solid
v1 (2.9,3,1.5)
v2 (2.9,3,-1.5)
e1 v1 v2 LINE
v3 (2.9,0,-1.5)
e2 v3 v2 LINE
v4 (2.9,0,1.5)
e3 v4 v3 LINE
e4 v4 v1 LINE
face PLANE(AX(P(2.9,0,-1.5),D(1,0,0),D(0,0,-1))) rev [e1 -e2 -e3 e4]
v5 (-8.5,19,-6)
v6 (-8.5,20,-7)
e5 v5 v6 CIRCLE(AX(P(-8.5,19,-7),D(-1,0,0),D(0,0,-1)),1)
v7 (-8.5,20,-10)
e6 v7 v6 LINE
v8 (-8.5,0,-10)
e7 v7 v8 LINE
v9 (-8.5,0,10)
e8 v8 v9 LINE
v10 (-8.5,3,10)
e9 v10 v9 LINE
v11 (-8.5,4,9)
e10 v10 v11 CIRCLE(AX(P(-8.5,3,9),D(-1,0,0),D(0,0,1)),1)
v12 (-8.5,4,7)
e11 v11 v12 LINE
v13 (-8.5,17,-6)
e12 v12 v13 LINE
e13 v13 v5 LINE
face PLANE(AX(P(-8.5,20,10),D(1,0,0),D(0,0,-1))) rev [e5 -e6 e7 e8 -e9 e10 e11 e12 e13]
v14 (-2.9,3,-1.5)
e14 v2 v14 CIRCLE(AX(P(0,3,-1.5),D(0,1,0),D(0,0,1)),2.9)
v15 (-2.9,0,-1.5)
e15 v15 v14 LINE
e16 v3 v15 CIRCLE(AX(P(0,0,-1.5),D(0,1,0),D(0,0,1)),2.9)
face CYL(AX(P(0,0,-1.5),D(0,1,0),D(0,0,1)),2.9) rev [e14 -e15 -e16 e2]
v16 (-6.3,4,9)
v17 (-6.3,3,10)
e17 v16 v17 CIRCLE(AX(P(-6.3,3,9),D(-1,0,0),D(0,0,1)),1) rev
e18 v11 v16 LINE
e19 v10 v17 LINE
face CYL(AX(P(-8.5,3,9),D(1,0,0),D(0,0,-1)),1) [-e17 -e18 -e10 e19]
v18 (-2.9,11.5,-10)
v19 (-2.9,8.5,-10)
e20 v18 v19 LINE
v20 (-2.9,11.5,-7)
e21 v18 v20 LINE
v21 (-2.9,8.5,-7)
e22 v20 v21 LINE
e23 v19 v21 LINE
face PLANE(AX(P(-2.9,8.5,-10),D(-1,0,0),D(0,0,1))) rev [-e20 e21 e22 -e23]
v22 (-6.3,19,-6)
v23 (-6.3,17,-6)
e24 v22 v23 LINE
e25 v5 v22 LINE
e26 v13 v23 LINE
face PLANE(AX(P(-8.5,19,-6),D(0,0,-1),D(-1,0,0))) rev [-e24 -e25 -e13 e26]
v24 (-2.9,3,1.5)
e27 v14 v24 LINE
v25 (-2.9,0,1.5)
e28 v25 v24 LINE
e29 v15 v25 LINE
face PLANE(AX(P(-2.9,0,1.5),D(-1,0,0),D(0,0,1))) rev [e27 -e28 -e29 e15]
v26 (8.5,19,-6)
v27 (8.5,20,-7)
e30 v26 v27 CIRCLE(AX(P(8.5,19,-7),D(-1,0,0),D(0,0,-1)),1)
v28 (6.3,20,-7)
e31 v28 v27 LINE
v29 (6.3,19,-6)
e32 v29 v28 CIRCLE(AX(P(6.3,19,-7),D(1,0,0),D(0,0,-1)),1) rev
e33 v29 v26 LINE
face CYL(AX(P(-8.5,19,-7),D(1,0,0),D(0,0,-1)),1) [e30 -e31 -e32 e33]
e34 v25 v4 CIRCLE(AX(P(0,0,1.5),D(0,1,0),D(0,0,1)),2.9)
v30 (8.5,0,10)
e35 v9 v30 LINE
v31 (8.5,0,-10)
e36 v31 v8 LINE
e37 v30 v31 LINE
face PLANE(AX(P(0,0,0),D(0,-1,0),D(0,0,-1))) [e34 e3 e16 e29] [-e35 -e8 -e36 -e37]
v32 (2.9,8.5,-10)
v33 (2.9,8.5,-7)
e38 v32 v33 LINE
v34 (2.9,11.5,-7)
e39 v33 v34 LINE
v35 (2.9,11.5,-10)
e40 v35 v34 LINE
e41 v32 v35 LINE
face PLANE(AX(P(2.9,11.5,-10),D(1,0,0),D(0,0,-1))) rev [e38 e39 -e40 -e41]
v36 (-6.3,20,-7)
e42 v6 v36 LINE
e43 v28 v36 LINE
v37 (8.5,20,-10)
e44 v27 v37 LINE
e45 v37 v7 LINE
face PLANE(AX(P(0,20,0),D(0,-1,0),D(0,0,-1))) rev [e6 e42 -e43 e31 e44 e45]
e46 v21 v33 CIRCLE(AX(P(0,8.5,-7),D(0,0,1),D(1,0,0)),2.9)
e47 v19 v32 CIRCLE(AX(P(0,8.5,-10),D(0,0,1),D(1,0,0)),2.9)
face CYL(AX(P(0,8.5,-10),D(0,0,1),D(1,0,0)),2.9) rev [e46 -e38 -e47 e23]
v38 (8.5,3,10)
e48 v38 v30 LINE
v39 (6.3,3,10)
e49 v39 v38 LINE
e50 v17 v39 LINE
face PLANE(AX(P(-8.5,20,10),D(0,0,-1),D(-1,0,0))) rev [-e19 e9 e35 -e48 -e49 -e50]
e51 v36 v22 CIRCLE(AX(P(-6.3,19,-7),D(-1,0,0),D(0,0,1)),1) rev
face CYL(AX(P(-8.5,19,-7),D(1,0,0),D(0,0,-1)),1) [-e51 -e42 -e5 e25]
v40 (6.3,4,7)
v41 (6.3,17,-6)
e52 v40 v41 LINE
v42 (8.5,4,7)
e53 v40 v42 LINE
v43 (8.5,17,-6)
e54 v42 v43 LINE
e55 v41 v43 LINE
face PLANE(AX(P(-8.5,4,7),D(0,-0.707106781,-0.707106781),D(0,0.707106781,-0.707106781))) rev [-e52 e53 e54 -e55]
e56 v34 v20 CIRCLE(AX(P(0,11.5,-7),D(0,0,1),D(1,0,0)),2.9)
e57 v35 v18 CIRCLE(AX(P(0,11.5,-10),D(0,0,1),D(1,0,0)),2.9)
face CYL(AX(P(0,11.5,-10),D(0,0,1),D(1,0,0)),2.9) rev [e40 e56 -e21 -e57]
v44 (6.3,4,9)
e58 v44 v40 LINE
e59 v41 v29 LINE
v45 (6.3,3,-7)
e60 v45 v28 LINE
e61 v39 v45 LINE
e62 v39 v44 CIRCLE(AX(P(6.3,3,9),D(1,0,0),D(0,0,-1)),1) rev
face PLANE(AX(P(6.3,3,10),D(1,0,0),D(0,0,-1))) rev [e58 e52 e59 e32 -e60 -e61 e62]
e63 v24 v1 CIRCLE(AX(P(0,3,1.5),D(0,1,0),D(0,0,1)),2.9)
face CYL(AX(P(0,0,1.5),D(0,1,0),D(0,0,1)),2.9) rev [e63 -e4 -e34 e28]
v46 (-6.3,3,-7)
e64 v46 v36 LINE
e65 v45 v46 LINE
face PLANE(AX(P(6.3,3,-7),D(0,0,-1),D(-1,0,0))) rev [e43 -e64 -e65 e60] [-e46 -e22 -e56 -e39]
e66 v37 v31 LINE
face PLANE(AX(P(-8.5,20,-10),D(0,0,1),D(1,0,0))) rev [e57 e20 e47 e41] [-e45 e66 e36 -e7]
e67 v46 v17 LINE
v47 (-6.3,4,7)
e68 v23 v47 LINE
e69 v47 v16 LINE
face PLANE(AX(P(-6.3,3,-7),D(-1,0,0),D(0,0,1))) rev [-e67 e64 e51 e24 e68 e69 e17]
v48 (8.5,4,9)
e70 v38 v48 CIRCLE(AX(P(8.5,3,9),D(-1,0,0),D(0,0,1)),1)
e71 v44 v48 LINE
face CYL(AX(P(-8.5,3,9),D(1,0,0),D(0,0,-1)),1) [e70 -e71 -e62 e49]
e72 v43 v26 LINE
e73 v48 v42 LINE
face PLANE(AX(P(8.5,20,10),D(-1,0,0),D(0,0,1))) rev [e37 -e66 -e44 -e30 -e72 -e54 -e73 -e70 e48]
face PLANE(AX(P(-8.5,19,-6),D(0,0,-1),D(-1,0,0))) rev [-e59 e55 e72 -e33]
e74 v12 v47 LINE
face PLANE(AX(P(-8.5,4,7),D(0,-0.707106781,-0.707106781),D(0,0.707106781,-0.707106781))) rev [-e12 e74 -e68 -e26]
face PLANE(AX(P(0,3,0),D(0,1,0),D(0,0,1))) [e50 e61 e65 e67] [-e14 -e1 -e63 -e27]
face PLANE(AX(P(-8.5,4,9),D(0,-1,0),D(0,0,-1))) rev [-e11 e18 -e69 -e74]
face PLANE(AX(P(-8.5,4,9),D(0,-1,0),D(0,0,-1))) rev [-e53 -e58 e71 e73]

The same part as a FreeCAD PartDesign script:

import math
import FreeCAD as App
import Part
import Sketcher

V = App.Vector
Q = App.Units.Quantity


def add_polygon(sketch, points):
    """Adds a closed chain of lines whose ends are joined by coincident constraints."""
    first, n = sketch.GeometryCount, len(points)
    for a, b in zip(points, points[1:] + points[:1]):
        sketch.addGeometry(Part.LineSegment(App.Vector(*a, 0), App.Vector(*b, 0)), False)
    for i in range(n):
        sketch.addConstraint(Sketcher.Constraint("Coincident", first + i, 2, first + (i + 1) % n, 1))

doc = App.newDocument("Part")
body = doc.addObject("PartDesign::Body", "Body")

# Sketch on XZ plane
sketch1 = body.newObject("Sketcher::SketchObject", "Sketch")
sketch1.AttachmentSupport = (doc.getObject("XZ_Plane"), [""])
sketch1.MapMode = "FlatFace"
add_polygon(sketch1, [(-8, -10), (-8, 10), (8, 10), (8, -10)])  # lines 0-3
sketch1.addConstraint([
    Sketcher.Constraint("Vertical", 0),
    Sketcher.Constraint("Horizontal", 1),
    Sketcher.Constraint("Vertical", 2),
    Sketcher.Constraint("Horizontal", 3),
    Sketcher.Constraint("Symmetric", 0, 2, 2, 2, -1, 1),
    Sketcher.Constraint("DistanceX", 1, 1, 1, 2, Q("17 mm")),
    Sketcher.Constraint("DistanceY", 0, 1, 0, 2, Q("20 mm")),
])
pad1 = body.newObject("PartDesign::Pad", "Pad")
pad1.Profile = sketch1
pad1.Length = 20
pad1.Reversed = True

# Sketch on XZ plane
sketch2 = body.newObject("Sketcher::SketchObject", "Sketch001")
sketch2.AttachmentSupport = (doc.getObject("XZ_Plane"), [""])
sketch2.MapMode = "FlatFace"
sketch2.AttachmentOffset = App.Placement(V(0, 0, -20), App.Rotation())
add_polygon(sketch2, [(-6, -7), (-6, 10), (6, 10), (6, -7)])  # lines 0-3
sketch2.addConstraint([
    Sketcher.Constraint("Vertical", 0),
    Sketcher.Constraint("Horizontal", 1),
    Sketcher.Constraint("Vertical", 2),
    Sketcher.Constraint("Horizontal", 3),
    Sketcher.Constraint("DistanceY", 0, 1, 0, 2, Q("17 mm")),
    Sketcher.Constraint("DistanceX", 1, 1, 1, 2, Q("12.6 mm")),
    Sketcher.Constraint("DistanceY", -1, 1, 0, 2, Q("10 mm")),
    Sketcher.Constraint("DistanceX", 0, 2, -1, 1, Q("6.3 mm")),
])
pocket1 = body.newObject("PartDesign::Pocket", "Pocket")
pocket1.Profile = sketch2
pocket1.Length = 17
pocket1.Reversed = True

# Sketch on YZ plane
sketch3 = body.newObject("Sketcher::SketchObject", "Sketch002")
sketch3.AttachmentSupport = (doc.getObject("YZ_Plane"), [""])
sketch3.MapMode = "FlatFace"
sketch3.AttachmentOffset = App.Placement(V(0, 0, 8.5), App.Rotation())
sketch3.addGeometry([
    Part.LineSegment(V(17, -6, 0), V(19, -6, 0)),  # 0
    Part.ArcOfCircle(Part.Circle(V(19, -7, 0), V(0, 0, 1), 1), math.radians(0), math.radians(90)),  # 1
    Part.LineSegment(V(20, -7, 0), V(20, 10, 0)),  # 2
    Part.LineSegment(V(20, 10, 0), V(3, 10, 0)),  # 3
    Part.ArcOfCircle(Part.Circle(V(3, 9, 0), V(0, 0, 1), 1), math.radians(0), math.radians(90)),  # 4
    Part.LineSegment(V(4, 9, 0), V(4, 7, 0)),  # 5
    Part.LineSegment(V(4, 7, 0), V(17, -6, 0)),  # 6
], False)
sketch3.addConstraint([
    Sketcher.Constraint("Tangent", 0, 2, 1, 2),
    Sketcher.Constraint("Tangent", 1, 1, 2, 1),
    Sketcher.Constraint("Coincident", 2, 2, 3, 1),
    Sketcher.Constraint("Tangent", 3, 2, 4, 2),
    Sketcher.Constraint("Tangent", 4, 1, 5, 1),
    Sketcher.Constraint("Coincident", 5, 2, 6, 1),
    Sketcher.Constraint("Coincident", 6, 2, 0, 1),
    Sketcher.Constraint("Horizontal", 0),
    Sketcher.Constraint("Vertical", 2),
    Sketcher.Constraint("Horizontal", 3),
    Sketcher.Constraint("Vertical", 5),
    Sketcher.Constraint("Equal", 1, 4),
    Sketcher.Constraint("Equal", 3, 2),
    Sketcher.Constraint("Equal", 0, 5),
    Sketcher.Constraint("Radius", 1, Q("1 mm")),
    Sketcher.Constraint("DistanceX", 0, 1, 0, 2, Q("2 mm")),
    Sketcher.Constraint("DistanceX", 3, 2, 3, 1, Q("17 mm")),
    Sketcher.Constraint("DistanceX", -1, 1, 1, 3, Q("19 mm")),
    Sketcher.Constraint("DistanceY", 1, 3, -1, 1, Q("7 mm")),
])
pocket2 = body.newObject("PartDesign::Pocket", "Pocket001")
pocket2.Profile = sketch3
pocket2.Length = 17

# Sketch on XY plane
sketch4 = body.newObject("Sketcher::SketchObject", "Sketch003")
sketch4.AttachmentSupport = (doc.getObject("XY_Plane"), [""])
sketch4.MapMode = "FlatFace"
sketch4.AttachmentOffset = App.Placement(V(0, 0, -7), App.Rotation())
sketch4.addGeometry([
    Part.LineSegment(V(2.9, 8.5, 0), V(2.9, 11.5, 0)),
    Part.ArcOfCircle(Part.Circle(V(0, 11.5, 0), V(0, 0, 1), 2.9), math.radians(0), math.radians(180)),
    Part.LineSegment(V(-2.9, 11.5, 0), V(-2.9, 8.5, 0)),
    Part.ArcOfCircle(Part.Circle(V(0, 8.5, 0), V(0, 0, 1), 2.9), math.radians(180), math.radians(360)),
], False)
sketch4.addConstraint([
    Sketcher.Constraint("Tangent", 0, 2, 1, 1),
    Sketcher.Constraint("Tangent", 1, 2, 2, 1),
    Sketcher.Constraint("Tangent", 2, 2, 3, 1),
    Sketcher.Constraint("Tangent", 3, 2, 0, 1),
    Sketcher.Constraint("Vertical", 0),
    Sketcher.Constraint("Vertical", 2),
    Sketcher.Constraint("PointOnObject", 1, 3, -2),
    Sketcher.Constraint("Radius", 1, Q("2.9 mm")),
    Sketcher.Constraint("DistanceY", 0, 1, 0, 2, Q("3 mm")),
    Sketcher.Constraint("DistanceY", -1, 1, 1, 3, Q("11.5 mm")),
])
pocket3 = body.newObject("PartDesign::Pocket", "Pocket002")
pocket3.Profile = sketch4
pocket3.Length = 3

# Sketch on XZ plane
sketch5 = body.newObject("Sketcher::SketchObject", "Sketch004")
sketch5.AttachmentSupport = (doc.getObject("XZ_Plane"), [""])
sketch5.MapMode = "FlatFace"
sketch5.AttachmentOffset = App.Placement(V(0, 0, -3), App.Rotation())
sketch5.addGeometry([
    Part.LineSegment(V(2.9, 1.5, 0), V(2.9, -1.5, 0)),
    Part.ArcOfCircle(Part.Circle(V(0, -1.5, 0), V(0, 0, 1), 2.9), math.radians(180), math.radians(360)),
    Part.LineSegment(V(-2.9, -1.5, 0), V(-2.9, 1.5, 0)),
    Part.ArcOfCircle(Part.Circle(V(0, 1.5, 0), V(0, 0, 1), 2.9), math.radians(0), math.radians(180)),
], False)
sketch5.addConstraint([
    Sketcher.Constraint("Tangent", 0, 2, 1, 2),
    Sketcher.Constraint("Tangent", 1, 1, 2, 1),
    Sketcher.Constraint("Tangent", 2, 2, 3, 2),
    Sketcher.Constraint("Tangent", 3, 1, 0, 1),
    Sketcher.Constraint("Vertical", 0),
    Sketcher.Constraint("Vertical", 2),
    Sketcher.Constraint("Symmetric", 1, 3, 3, 3, -1, 1),
    Sketcher.Constraint("Radius", 1, Q("2.9 mm")),
    Sketcher.Constraint("DistanceY", 0, 2, 0, 1, Q("3 mm")),
])
pocket4 = body.newObject("PartDesign::Pocket", "Pocket003")
pocket4.Profile = sketch5
pocket4.Length = 3
pocket4.Reversed = True

doc.recompute()
